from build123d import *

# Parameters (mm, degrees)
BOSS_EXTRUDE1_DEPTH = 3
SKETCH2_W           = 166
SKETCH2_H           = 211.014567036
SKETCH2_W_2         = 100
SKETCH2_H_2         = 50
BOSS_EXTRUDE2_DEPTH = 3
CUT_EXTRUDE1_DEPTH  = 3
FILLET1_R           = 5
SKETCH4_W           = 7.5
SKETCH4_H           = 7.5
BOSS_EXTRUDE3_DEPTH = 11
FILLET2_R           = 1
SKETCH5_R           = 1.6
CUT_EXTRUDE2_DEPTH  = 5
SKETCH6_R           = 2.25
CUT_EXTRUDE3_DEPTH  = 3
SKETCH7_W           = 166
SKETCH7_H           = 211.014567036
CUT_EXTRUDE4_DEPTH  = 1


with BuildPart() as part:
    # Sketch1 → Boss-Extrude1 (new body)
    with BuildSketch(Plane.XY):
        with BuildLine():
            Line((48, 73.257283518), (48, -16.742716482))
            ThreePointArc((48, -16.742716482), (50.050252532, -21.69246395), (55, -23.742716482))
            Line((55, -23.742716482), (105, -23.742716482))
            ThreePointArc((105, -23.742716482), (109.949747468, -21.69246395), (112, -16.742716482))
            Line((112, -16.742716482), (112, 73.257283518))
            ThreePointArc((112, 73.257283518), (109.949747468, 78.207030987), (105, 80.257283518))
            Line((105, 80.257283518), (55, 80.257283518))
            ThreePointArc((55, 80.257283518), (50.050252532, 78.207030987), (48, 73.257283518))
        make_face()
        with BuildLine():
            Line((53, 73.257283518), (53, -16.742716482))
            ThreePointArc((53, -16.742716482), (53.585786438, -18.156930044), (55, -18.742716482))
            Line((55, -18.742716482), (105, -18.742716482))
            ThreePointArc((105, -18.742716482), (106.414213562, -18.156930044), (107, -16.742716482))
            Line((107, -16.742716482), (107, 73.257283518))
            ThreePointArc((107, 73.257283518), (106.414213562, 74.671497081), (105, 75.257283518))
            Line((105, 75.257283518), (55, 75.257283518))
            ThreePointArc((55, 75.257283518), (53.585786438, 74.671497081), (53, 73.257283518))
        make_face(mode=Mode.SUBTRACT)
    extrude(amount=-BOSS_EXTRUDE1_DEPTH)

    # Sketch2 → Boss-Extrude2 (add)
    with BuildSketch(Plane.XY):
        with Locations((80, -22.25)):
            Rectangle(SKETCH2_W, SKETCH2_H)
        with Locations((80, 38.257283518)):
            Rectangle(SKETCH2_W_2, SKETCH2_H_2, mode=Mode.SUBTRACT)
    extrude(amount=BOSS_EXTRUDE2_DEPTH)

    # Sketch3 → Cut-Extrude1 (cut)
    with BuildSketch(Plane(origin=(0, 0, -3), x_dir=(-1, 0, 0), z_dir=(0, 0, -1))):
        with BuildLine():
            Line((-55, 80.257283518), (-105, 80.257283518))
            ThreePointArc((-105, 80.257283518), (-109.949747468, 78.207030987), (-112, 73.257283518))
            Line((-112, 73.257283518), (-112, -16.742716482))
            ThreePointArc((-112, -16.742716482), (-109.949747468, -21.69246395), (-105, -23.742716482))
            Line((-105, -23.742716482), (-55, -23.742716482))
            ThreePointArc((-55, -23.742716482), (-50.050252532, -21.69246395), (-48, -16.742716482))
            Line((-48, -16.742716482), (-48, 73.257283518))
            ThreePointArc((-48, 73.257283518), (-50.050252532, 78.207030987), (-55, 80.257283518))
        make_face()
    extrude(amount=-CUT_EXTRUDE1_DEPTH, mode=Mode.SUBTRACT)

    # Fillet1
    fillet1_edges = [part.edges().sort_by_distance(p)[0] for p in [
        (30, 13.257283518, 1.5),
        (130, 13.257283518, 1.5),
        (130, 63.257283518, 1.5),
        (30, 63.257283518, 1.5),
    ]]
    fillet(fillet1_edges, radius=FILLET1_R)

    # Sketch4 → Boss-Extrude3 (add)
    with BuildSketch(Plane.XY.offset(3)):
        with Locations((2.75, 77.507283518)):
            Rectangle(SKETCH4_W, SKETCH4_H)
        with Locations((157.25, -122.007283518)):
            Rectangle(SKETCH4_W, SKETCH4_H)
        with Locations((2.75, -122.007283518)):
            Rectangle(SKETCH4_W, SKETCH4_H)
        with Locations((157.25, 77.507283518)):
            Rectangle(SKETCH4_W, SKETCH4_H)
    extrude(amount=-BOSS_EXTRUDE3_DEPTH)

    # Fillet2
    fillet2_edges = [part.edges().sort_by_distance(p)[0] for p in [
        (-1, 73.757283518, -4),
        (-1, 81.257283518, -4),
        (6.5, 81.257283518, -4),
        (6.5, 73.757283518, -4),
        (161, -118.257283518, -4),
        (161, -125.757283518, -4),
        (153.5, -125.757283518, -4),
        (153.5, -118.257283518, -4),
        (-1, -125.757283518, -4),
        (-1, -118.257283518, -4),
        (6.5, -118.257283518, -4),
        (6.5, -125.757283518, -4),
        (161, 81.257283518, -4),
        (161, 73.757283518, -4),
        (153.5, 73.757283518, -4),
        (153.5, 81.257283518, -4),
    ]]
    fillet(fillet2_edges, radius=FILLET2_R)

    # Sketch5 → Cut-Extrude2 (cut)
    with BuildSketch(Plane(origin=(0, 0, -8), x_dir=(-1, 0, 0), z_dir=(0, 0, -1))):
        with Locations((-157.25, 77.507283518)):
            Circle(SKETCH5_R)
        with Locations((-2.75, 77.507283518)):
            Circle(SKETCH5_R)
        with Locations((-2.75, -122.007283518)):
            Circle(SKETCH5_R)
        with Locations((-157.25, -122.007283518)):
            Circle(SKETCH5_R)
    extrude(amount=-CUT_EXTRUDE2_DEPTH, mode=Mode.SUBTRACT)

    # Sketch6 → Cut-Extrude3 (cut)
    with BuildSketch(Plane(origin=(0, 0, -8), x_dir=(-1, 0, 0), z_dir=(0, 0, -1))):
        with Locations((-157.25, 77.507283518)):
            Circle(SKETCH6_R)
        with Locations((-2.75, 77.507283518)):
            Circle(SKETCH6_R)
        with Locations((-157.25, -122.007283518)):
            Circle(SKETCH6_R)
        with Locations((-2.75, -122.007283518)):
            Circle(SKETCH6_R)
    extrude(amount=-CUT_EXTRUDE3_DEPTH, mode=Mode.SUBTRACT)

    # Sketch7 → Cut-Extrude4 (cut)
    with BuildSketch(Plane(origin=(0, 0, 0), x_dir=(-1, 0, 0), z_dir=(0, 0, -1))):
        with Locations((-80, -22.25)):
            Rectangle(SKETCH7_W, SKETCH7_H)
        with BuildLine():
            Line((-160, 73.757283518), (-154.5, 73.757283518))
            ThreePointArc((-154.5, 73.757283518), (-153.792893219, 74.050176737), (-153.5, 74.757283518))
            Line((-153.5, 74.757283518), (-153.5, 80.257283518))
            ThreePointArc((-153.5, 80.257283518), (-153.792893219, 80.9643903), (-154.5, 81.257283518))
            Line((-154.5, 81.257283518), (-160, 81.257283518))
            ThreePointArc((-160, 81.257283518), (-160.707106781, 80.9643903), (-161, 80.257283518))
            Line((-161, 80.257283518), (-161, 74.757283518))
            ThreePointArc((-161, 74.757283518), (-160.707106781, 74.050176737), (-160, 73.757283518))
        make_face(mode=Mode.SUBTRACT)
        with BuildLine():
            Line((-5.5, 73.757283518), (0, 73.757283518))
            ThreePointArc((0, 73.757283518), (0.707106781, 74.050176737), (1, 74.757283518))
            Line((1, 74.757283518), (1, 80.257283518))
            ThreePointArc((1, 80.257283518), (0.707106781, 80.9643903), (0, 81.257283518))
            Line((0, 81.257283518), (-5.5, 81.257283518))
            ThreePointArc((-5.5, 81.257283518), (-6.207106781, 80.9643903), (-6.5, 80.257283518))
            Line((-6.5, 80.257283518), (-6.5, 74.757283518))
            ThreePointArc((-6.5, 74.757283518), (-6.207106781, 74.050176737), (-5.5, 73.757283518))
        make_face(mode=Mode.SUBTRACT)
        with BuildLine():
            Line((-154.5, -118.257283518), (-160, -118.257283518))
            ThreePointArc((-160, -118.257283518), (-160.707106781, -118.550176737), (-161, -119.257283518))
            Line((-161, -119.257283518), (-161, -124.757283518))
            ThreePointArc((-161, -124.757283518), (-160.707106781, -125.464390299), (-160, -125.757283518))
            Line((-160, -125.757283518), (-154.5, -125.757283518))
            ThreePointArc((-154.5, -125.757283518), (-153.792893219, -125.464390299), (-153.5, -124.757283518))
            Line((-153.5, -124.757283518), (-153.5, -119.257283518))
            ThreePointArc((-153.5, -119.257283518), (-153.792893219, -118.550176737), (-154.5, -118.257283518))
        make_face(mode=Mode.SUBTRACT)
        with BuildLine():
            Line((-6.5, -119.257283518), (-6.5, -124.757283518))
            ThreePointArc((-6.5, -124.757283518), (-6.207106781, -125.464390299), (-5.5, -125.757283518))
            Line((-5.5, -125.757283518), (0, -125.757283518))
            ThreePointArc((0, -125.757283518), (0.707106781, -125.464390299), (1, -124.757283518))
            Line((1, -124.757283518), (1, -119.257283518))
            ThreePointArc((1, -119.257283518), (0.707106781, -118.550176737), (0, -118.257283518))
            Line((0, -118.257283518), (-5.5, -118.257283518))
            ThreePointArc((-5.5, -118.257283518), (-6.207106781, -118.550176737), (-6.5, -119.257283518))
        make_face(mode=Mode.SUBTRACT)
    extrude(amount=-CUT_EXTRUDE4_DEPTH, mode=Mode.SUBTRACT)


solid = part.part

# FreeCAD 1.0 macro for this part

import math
import FreeCAD as App
import Part
import Sketcher
from FreeCAD import Vector


def edges_at(feature, points):
    """Names of the edges that pass closest to the given points."""
    edges = feature.Shape.Edges
    near = lambda p: min(range(len(edges)), key=lambda i: edges[i].distToShape(Part.Vertex(*p))[0])
    return sorted({f"Edge{near(p) + 1}" for p in points})


def add_polygon(sketch, points):
    """Adds a closed chain of lines whose ends are joined by coincident constraints."""
    first, n = sketch.GeometryCount, len(points)
    for a, b in zip(points, points[1:] + points[:1]):
        sketch.addGeometry(Part.LineSegment(App.Vector(*a, 0), App.Vector(*b, 0)), False)
    for i in range(n):
        sketch.addConstraint(Sketcher.Constraint("Coincident", first + i, 2, first + (i + 1) % n, 1))

doc = App.newDocument("Part")
body = doc.addObject("PartDesign::Body", "Body")

# Sketch on XY plane
sketch1 = body.newObject("Sketcher::SketchObject", "Sketch")
sketch1.AttachmentSupport = (doc.getObject("XY_Plane"), [""])
sketch1.MapMode = "FlatFace"
sketch1.addGeometry([
    Part.LineSegment(Vector(48, 73.257284, 0), Vector(48, -16.742716, 0)),  # 0
    Part.ArcOfCircle(Part.Circle(Vector(55, -16.742716, 0), Vector(0, 0, 1), 7), math.radians(-180), math.radians(-90)),  # 1
    Part.LineSegment(Vector(55, -23.742716, 0), Vector(105, -23.742716, 0)),  # 2
    Part.ArcOfCircle(Part.Circle(Vector(105, -16.742716, 0), Vector(0, 0, 1), 7), math.radians(-90), math.radians(0)),  # 3
    Part.LineSegment(Vector(112, -16.742716, 0), Vector(112, 73.257284, 0)),  # 4
    Part.ArcOfCircle(Part.Circle(Vector(105, 73.257284, 0), Vector(0, 0, 1), 7), math.radians(0), math.radians(90)),  # 5
    Part.LineSegment(Vector(105, 80.257284, 0), Vector(55, 80.257284, 0)),  # 6
    Part.ArcOfCircle(Part.Circle(Vector(55, 73.257284, 0), Vector(0, 0, 1), 7), math.radians(90), math.radians(180)),  # 7
    Part.LineSegment(Vector(53, -16.742716, 0), Vector(53, 73.257284, 0)),  # 8
    Part.ArcOfCircle(Part.Circle(Vector(55, 73.257284, 0), Vector(0, 0, 1), 2), math.radians(90), math.radians(180)),  # 9
    Part.LineSegment(Vector(55, 75.257284, 0), Vector(105, 75.257284, 0)),  # 10
    Part.ArcOfCircle(Part.Circle(Vector(105, 73.257284, 0), Vector(0, 0, 1), 2), math.radians(0), math.radians(90)),  # 11
    Part.LineSegment(Vector(107, 73.257284, 0), Vector(107, -16.742716, 0)),  # 12
    Part.ArcOfCircle(Part.Circle(Vector(105, -16.742716, 0), Vector(0, 0, 1), 2), math.radians(-90), math.radians(0)),  # 13
    Part.LineSegment(Vector(105, -18.742716, 0), Vector(55, -18.742716, 0)),  # 14
    Part.ArcOfCircle(Part.Circle(Vector(55, -16.742716, 0), Vector(0, 0, 1), 2), math.radians(-180), math.radians(-90)),  # 15
], False)
sketch1.addConstraint([
    Sketcher.Constraint("Tangent", 0, 2, 1, 1),
    Sketcher.Constraint("Tangent", 1, 2, 2, 1),
    Sketcher.Constraint("Tangent", 2, 2, 3, 1),
    Sketcher.Constraint("Tangent", 3, 2, 4, 1),
    Sketcher.Constraint("Tangent", 4, 2, 5, 1),
    Sketcher.Constraint("Tangent", 5, 2, 6, 1),
    Sketcher.Constraint("Tangent", 6, 2, 7, 1),
    Sketcher.Constraint("Tangent", 7, 2, 0, 1),
    Sketcher.Constraint("Tangent", 8, 2, 9, 2),
    Sketcher.Constraint("Tangent", 9, 1, 10, 1),
    Sketcher.Constraint("Tangent", 10, 2, 11, 2),
    Sketcher.Constraint("Tangent", 11, 1, 12, 1),
    Sketcher.Constraint("Tangent", 12, 2, 13, 2),
    Sketcher.Constraint("Tangent", 13, 1, 14, 1),
    Sketcher.Constraint("Tangent", 14, 2, 15, 2),
    Sketcher.Constraint("Tangent", 15, 1, 8, 1),
    Sketcher.Constraint("Vertical", 0),
    Sketcher.Constraint("Horizontal", 2),
    Sketcher.Constraint("Vertical", 4),
    Sketcher.Constraint("Horizontal", 6),
    Sketcher.Constraint("Vertical", 8),
    Sketcher.Constraint("Horizontal", 10),
    Sketcher.Constraint("Vertical", 12),
    Sketcher.Constraint("Horizontal", 14),
    Sketcher.Constraint("Coincident", 9, 3, 7, 3),
    Sketcher.Constraint("Coincident", 11, 3, 5, 3),
    Sketcher.Constraint("Coincident", 13, 3, 3, 3),
    Sketcher.Constraint("Equal", 1, 3),
    Sketcher.Constraint("Equal", 3, 5),
    Sketcher.Constraint("Equal", 5, 7),
    Sketcher.Constraint("Equal", 13, 15),
    Sketcher.Constraint("Radius", 1, 7.0),
    Sketcher.Constraint("Radius", 9, 2.0),
    Sketcher.Constraint("DistanceX", 2, 1, 2, 2, 50.0),
    Sketcher.Constraint("DistanceY", 0, 2, 0, 1, 90.0),
    Sketcher.Constraint("DistanceX", -1, 1, 1, 3, 55.0),
    Sketcher.Constraint("DistanceY", 1, 3, -1, 1, 16.742716),
])
pad1 = body.newObject("PartDesign::Pad", "Pad")
pad1.Profile = sketch1
pad1.Length = 3
pad1.Reversed = True

# Sketch on XY plane
sketch2 = body.newObject("Sketcher::SketchObject", "Sketch001")
sketch2.AttachmentSupport = (doc.getObject("XY_Plane"), [""])
sketch2.MapMode = "FlatFace"
add_polygon(sketch2, [(-3, 83.257284), (-3, -127.757284), (163, -127.757284), (163, 83.257284)])  # lines 0-3
add_polygon(sketch2, [(130, 13.257284), (30, 13.257284), (30, 63.257284), (130, 63.257284)])  # lines 4-7
sketch2.addConstraint([
    Sketcher.Constraint("Vertical", 0),
    Sketcher.Constraint("Horizontal", 1),
    Sketcher.Constraint("Vertical", 2),
    Sketcher.Constraint("Horizontal", 3),
    Sketcher.Constraint("Horizontal", 4),
    Sketcher.Constraint("Vertical", 5),
    Sketcher.Constraint("Horizontal", 6),
    Sketcher.Constraint("Vertical", 7),
    Sketcher.Constraint("DistanceX", 1, 1, 1, 2, 166.0),
    Sketcher.Constraint("DistanceX", 4, 2, 4, 1, 100.0),
    Sketcher.Constraint("DistanceY", 5, 1, 5, 2, 50.0),
    Sketcher.Constraint("DistanceX", 0, 2, -1, 1, 3.0),
    Sketcher.Constraint("DistanceX", -1, 1, 4, 2, 30.0),
    Sketcher.Constraint("DistanceY", 4, 2, 3, 2, 70.0),
    Sketcher.Constraint("DistanceY", 0, 2, 0, 1, 211.014567),
    Sketcher.Constraint("DistanceY", 0, 2, -1, 1, 127.757284),
])
pad2 = body.newObject("PartDesign::Pad", "Pad001")
pad2.Profile = sketch2
pad2.Length = 3

# Sketch on XY plane
sketch3 = body.newObject("Sketcher::SketchObject", "Sketch002")
sketch3.AttachmentSupport = (doc.getObject("XY_Plane"), [""])
sketch3.MapMode = "FlatFace"
sketch3.AttachmentOffset = App.Placement(Vector(0, 0, -3), App.Rotation())
sketch3.addGeometry([
    Part.LineSegment(Vector(55, 80.257284, 0), Vector(105, 80.257284, 0)),  # 0
    Part.ArcOfCircle(Part.Circle(Vector(105, 73.257284, 0), Vector(0, 0, 1), 7), math.radians(0), math.radians(90)),  # 1
    Part.LineSegment(Vector(112, 73.257284, 0), Vector(112, -16.742716, 0)),  # 2
    Part.ArcOfCircle(Part.Circle(Vector(105, -16.742716, 0), Vector(0, 0, 1), 7), math.radians(-90), math.radians(0)),  # 3
    Part.LineSegment(Vector(105, -23.742716, 0), Vector(55, -23.742716, 0)),  # 4
    Part.ArcOfCircle(Part.Circle(Vector(55, -16.742716, 0), Vector(0, 0, 1), 7), math.radians(-180), math.radians(-90)),  # 5
    Part.LineSegment(Vector(48, -16.742716, 0), Vector(48, 73.257284, 0)),  # 6
    Part.ArcOfCircle(Part.Circle(Vector(55, 73.257284, 0), Vector(0, 0, 1), 7), math.radians(90), math.radians(180)),  # 7
], False)
sketch3.addConstraint([
    Sketcher.Constraint("Tangent", 0, 2, 1, 2),
    Sketcher.Constraint("Tangent", 1, 1, 2, 1),
    Sketcher.Constraint("Tangent", 2, 2, 3, 2),
    Sketcher.Constraint("Tangent", 3, 1, 4, 1),
    Sketcher.Constraint("Tangent", 4, 2, 5, 2),
    Sketcher.Constraint("Tangent", 5, 1, 6, 1),
    Sketcher.Constraint("Tangent", 6, 2, 7, 2),
    Sketcher.Constraint("Tangent", 7, 1, 0, 1),
    Sketcher.Constraint("Horizontal", 0),
    Sketcher.Constraint("Vertical", 2),
    Sketcher.Constraint("Horizontal", 4),
    Sketcher.Constraint("Vertical", 6),
    Sketcher.Constraint("Equal", 1, 3),
    Sketcher.Constraint("Equal", 3, 5),
    Sketcher.Constraint("Equal", 5, 7),
    Sketcher.Constraint("Radius", 1, 7.0),
    Sketcher.Constraint("DistanceX", 0, 1, 0, 2, 50.0),
    Sketcher.Constraint("DistanceY", 2, 2, 2, 1, 90.0),
    Sketcher.Constraint("DistanceX", -1, 1, 1, 3, 105.0),
    Sketcher.Constraint("DistanceY", -1, 1, 1, 3, 73.257284),
])
pocket1 = body.newObject("PartDesign::Pocket", "Pocket")
pocket1.Profile = sketch3
pocket1.Length = 3
pocket1.Reversed = True
doc.recompute()

fillet = body.newObject("PartDesign::Fillet", "Fillet")
fillet.Base = (pocket1, edges_at(pocket1, [
    (30, 13.257, 1.5),
    (130, 13.257, 1.5),
    (130, 63.257, 1.5),
    (30, 63.257, 1.5),
]))
fillet.Radius = 5

# Sketch on XY plane
sketch4 = body.newObject("Sketcher::SketchObject", "Sketch003")
sketch4.AttachmentSupport = (doc.getObject("XY_Plane"), [""])
sketch4.MapMode = "FlatFace"
sketch4.AttachmentOffset = App.Placement(Vector(0, 0, 3), App.Rotation())
add_polygon(sketch4, [(-1, 81.257284), (-1, 73.757284), (6.5, 73.757284), (6.5, 81.257284)])  # lines 0-3
add_polygon(sketch4, [(153.5, -118.257284), (153.5, -125.757284), (161, -125.757284), (161, -118.257284)])  # lines 4-7
add_polygon(sketch4, [(-1, -118.257284), (-1, -125.757284), (6.5, -125.757284), (6.5, -118.257284)])  # lines 8-11
add_polygon(sketch4, [(153.5, 81.257284), (153.5, 73.757284), (161, 73.757284), (161, 81.257284)])  # lines 12-15
sketch4.addConstraint([
    Sketcher.Constraint("Vertical", 0),
    Sketcher.Constraint("Horizontal", 1),
    Sketcher.Constraint("Vertical", 2),
    Sketcher.Constraint("Horizontal", 3),
    Sketcher.Constraint("Vertical", 4),
    Sketcher.Constraint("Horizontal", 5),
    Sketcher.Constraint("Vertical", 6),
    Sketcher.Constraint("Horizontal", 7),
    Sketcher.Constraint("Vertical", 8),
    Sketcher.Constraint("Horizontal", 9),
    Sketcher.Constraint("Vertical", 10),
    Sketcher.Constraint("Horizontal", 11),
    Sketcher.Constraint("Vertical", 12),
    Sketcher.Constraint("Horizontal", 13),
    Sketcher.Constraint("Vertical", 14),
    Sketcher.Constraint("Horizontal", 15),
    Sketcher.Constraint("Horizontal", 5, 2, 8, 2),
    Sketcher.Constraint("Horizontal", 7, 2, 10, 2),
    Sketcher.Constraint("Horizontal", 1, 2, 12, 2),
    Sketcher.Constraint("Horizontal", 3, 2, 14, 2),
    Sketcher.Constraint("Vertical", 3, 2, 8, 2),
    Sketcher.Constraint("Vertical", 2, 2, 9, 2),
    Sketcher.Constraint("Vertical", 7, 2, 12, 2),
    Sketcher.Constraint("Vertical", 6, 2, 13, 2),
    Sketcher.Constraint("Equal", 3, 5),
    Sketcher.Constraint("Equal", 15, 0),
    Sketcher.Constraint("Equal", 2, 4),
    Sketcher.Constraint("DistanceX", 1, 1, 1, 2, 7.5),
    Sketcher.Constraint("DistanceX", 0, 2, -1, 1, 1.0),
    Sketcher.Constraint("DistanceX", -1, 1, 5, 2, 161.0),
    Sketcher.Constraint("DistanceY", -1, 1, 0, 2, 73.757284),
    Sketcher.Constraint("DistanceY", 4, 2, -1, 1, 125.757284),
])
pad3 = body.newObject("PartDesign::Pad", "Pad002")
pad3.Profile = sketch4
pad3.Length = 11
pad3.Reversed = True
doc.recompute()

fillet2 = body.newObject("PartDesign::Fillet", "Fillet001")
fillet2.Base = (pad3, edges_at(pad3, [
    (-1, 73.757, -4),
    (-1, 81.257, -4),
    (6.5, 81.257, -4),
    (6.5, 73.757, -4),
    (161, -118.257, -4),
    (161, -125.757, -4),
    (153.5, -125.757, -4),
    (153.5, -118.257, -4),
    (-1, -125.757, -4),
    (-1, -118.257, -4),
    (6.5, -118.257, -4),
    (6.5, -125.757, -4),
    (161, 81.257, -4),
    (161, 73.757, -4),
    (153.5, 73.757, -4),
    (153.5, 81.257, -4),
]))
fillet2.Radius = 1

# Sketch on XY plane
sketch5 = body.newObject("Sketcher::SketchObject", "Sketch004")
sketch5.AttachmentSupport = (doc.getObject("XY_Plane"), [""])
sketch5.MapMode = "FlatFace"
sketch5.AttachmentOffset = App.Placement(Vector(0, 0, -8), App.Rotation())
sketch5.addGeometry([
    Part.Circle(Vector(157.25, 77.507284, 0), Vector(0, 0, 1), 1.6),
    Part.Circle(Vector(2.75, 77.507284, 0), Vector(0, 0, 1), 1.6),
    Part.Circle(Vector(2.75, -122.007284, 0), Vector(0, 0, 1), 1.6),
    Part.Circle(Vector(157.25, -122.007284, 0), Vector(0, 0, 1), 1.6),
], False)
sketch5.addConstraint([
    Sketcher.Constraint("Equal", 0, 1),
    Sketcher.Constraint("Equal", 1, 2),
    Sketcher.Constraint("Equal", 2, 3),
    Sketcher.Constraint("Horizontal", 0, 3, 1, 3),
    Sketcher.Constraint("Horizontal", 2, 3, 3, 3),
    Sketcher.Constraint("Vertical", 1, 3, 2, 3),
    Sketcher.Constraint("Vertical", 0, 3, 3, 3),
    Sketcher.Constraint("Diameter", 0, 3.2),
    Sketcher.Constraint("DistanceX", 1, 3, 0, 3, 154.5),
    Sketcher.Constraint("DistanceX", -1, 1, 0, 3, 157.25),
    Sketcher.Constraint("DistanceY", -1, 1, 0, 3, 77.507284),
    Sketcher.Constraint("DistanceY", 2, 3, -1, 1, 122.007284),
])
pocket2 = body.newObject("PartDesign::Pocket", "Pocket001")
pocket2.Profile = sketch5
pocket2.Length = 5
pocket2.Reversed = True

# Sketch on XY plane
sketch6 = body.newObject("Sketcher::SketchObject", "Sketch005")
sketch6.AttachmentSupport = (doc.getObject("XY_Plane"), [""])
sketch6.MapMode = "FlatFace"
sketch6.AttachmentOffset = App.Placement(Vector(0, 0, -8), App.Rotation())
sketch6.addGeometry([
    Part.Circle(Vector(157.25, 77.507284, 0), Vector(0, 0, 1), 2.25),
    Part.Circle(Vector(2.75, 77.507284, 0), Vector(0, 0, 1), 2.25),
    Part.Circle(Vector(157.25, -122.007284, 0), Vector(0, 0, 1), 2.25),
    Part.Circle(Vector(2.75, -122.007284, 0), Vector(0, 0, 1), 2.25),
], False)
sketch6.addConstraint([
    Sketcher.Constraint("Equal", 0, 1),
    Sketcher.Constraint("Equal", 1, 2),
    Sketcher.Constraint("Equal", 2, 3),
    Sketcher.Constraint("Horizontal", 0, 3, 1, 3),
    Sketcher.Constraint("Horizontal", 2, 3, 3, 3),
    Sketcher.Constraint("Vertical", 0, 3, 2, 3),
    Sketcher.Constraint("Vertical", 1, 3, 3, 3),
    Sketcher.Constraint("Diameter", 0, 4.5),
    Sketcher.Constraint("DistanceX", 1, 3, 0, 3, 154.5),
    Sketcher.Constraint("DistanceX", -1, 1, 0, 3, 157.25),
    Sketcher.Constraint("DistanceY", -1, 1, 0, 3, 77.507284),
    Sketcher.Constraint("DistanceY", 2, 3, -1, 1, 122.007284),
])
pocket3 = body.newObject("PartDesign::Pocket", "Pocket002")
pocket3.Profile = sketch6
pocket3.Length = 3
pocket3.Reversed = True

# Sketch on XY plane
sketch7 = body.newObject("Sketcher::SketchObject", "Sketch006")
sketch7.AttachmentSupport = (doc.getObject("XY_Plane"), [""])
sketch7.MapMode = "FlatFace"
add_polygon(sketch7, [(163, 83.257284), (163, -127.757284), (-3, -127.757284), (-3, 83.257284)])  # lines 0-3
sketch7.addGeometry(Part.LineSegment(Vector(160, -118.257284, 0), Vector(154.5, -118.257284, 0)), False)  # 4
sketch7.addGeometry(Part.ArcOfCircle(Part.Circle(Vector(154.5, -119.257284, 0), Vector(0, 0, 1), 1), math.radians(90), math.radians(180)), False)  # 5
sketch7.addGeometry(Part.LineSegment(Vector(153.5, -119.257284, 0), Vector(153.5, -124.757284, 0)), False)  # 6
sketch7.addGeometry(Part.ArcOfCircle(Part.Circle(Vector(154.5, -124.757284, 0), Vector(0, 0, 1), 1), math.radians(-180), math.radians(-90)), False)  # 7
sketch7.addGeometry(Part.LineSegment(Vector(154.5, -125.757284, 0), Vector(160, -125.757284, 0)), False)  # 8
sketch7.addGeometry(Part.ArcOfCircle(Part.Circle(Vector(160, -124.757284, 0), Vector(0, 0, 1), 1), math.radians(-90), math.radians(0)), False)  # 9
sketch7.addGeometry(Part.LineSegment(Vector(161, -124.757284, 0), Vector(161, -119.257284, 0)), False)  # 10
sketch7.addGeometry(Part.ArcOfCircle(Part.Circle(Vector(160, -119.257284, 0), Vector(0, 0, 1), 1), math.radians(0), math.radians(90)), False)  # 11
sketch7.addGeometry(Part.LineSegment(Vector(6.5, -124.757284, 0), Vector(6.5, -119.257284, 0)), False)  # 12
sketch7.addGeometry(Part.ArcOfCircle(Part.Circle(Vector(5.5, -119.257284, 0), Vector(0, 0, 1), 1), math.radians(0), math.radians(90)), False)  # 13
sketch7.addGeometry(Part.LineSegment(Vector(5.5, -118.257284, 0), Vector(0, -118.257284, 0)), False)  # 14
sketch7.addGeometry(Part.ArcOfCircle(Part.Circle(Vector(0, -119.257284, 0), Vector(0, 0, 1), 1), math.radians(90), math.radians(180)), False)  # 15
sketch7.addGeometry(Part.LineSegment(Vector(-1, -119.257284, 0), Vector(-1, -124.757284, 0)), False)  # 16
sketch7.addGeometry(Part.ArcOfCircle(Part.Circle(Vector(0, -124.757284, 0), Vector(0, 0, 1), 1), math.radians(-180), math.radians(-90)), False)  # 17
sketch7.addGeometry(Part.LineSegment(Vector(0, -125.757284, 0), Vector(5.5, -125.757284, 0)), False)  # 18
sketch7.addGeometry(Part.ArcOfCircle(Part.Circle(Vector(5.5, -124.757284, 0), Vector(0, 0, 1), 1), math.radians(-90), math.radians(0)), False)  # 19
sketch7.addGeometry(Part.LineSegment(Vector(154.5, 73.757284, 0), Vector(160, 73.757284, 0)), False)  # 20
sketch7.addGeometry(Part.ArcOfCircle(Part.Circle(Vector(160, 74.757284, 0), Vector(0, 0, 1), 1), math.radians(-90), math.radians(0)), False)  # 21
sketch7.addGeometry(Part.LineSegment(Vector(161, 74.757284, 0), Vector(161, 80.257284, 0)), False)  # 22
sketch7.addGeometry(Part.ArcOfCircle(Part.Circle(Vector(160, 80.257284, 0), Vector(0, 0, 1), 1), math.radians(0), math.radians(90)), False)  # 23
sketch7.addGeometry(Part.LineSegment(Vector(160, 81.257284, 0), Vector(154.5, 81.257284, 0)), False)  # 24
sketch7.addGeometry(Part.ArcOfCircle(Part.Circle(Vector(154.5, 80.257284, 0), Vector(0, 0, 1), 1), math.radians(90), math.radians(180)), False)  # 25
sketch7.addGeometry(Part.LineSegment(Vector(153.5, 80.257284, 0), Vector(153.5, 74.757284, 0)), False)  # 26
sketch7.addGeometry(Part.ArcOfCircle(Part.Circle(Vector(154.5, 74.757284, 0), Vector(0, 0, 1), 1), math.radians(-180), math.radians(-90)), False)  # 27
sketch7.addGeometry(Part.LineSegment(Vector(0, 73.757284, 0), Vector(5.5, 73.757284, 0)), False)  # 28
sketch7.addGeometry(Part.ArcOfCircle(Part.Circle(Vector(5.5, 74.757284, 0), Vector(0, 0, 1), 1), math.radians(-90), math.radians(0)), False)  # 29
sketch7.addGeometry(Part.LineSegment(Vector(6.5, 74.757284, 0), Vector(6.5, 80.257284, 0)), False)  # 30
sketch7.addGeometry(Part.ArcOfCircle(Part.Circle(Vector(5.5, 80.257284, 0), Vector(0, 0, 1), 1), math.radians(0), math.radians(90)), False)  # 31
sketch7.addGeometry(Part.LineSegment(Vector(5.5, 81.257284, 0), Vector(0, 81.257284, 0)), False)  # 32
sketch7.addGeometry(Part.ArcOfCircle(Part.Circle(Vector(0, 80.257284, 0), Vector(0, 0, 1), 1), math.radians(90), math.radians(180)), False)  # 33
sketch7.addGeometry(Part.LineSegment(Vector(-1, 80.257284, 0), Vector(-1, 74.757284, 0)), False)  # 34
sketch7.addGeometry(Part.ArcOfCircle(Part.Circle(Vector(0, 74.757284, 0), Vector(0, 0, 1), 1), math.radians(-180), math.radians(-90)), False)  # 35
sketch7.addConstraint([
    Sketcher.Constraint("Tangent", 4, 2, 5, 1),
    Sketcher.Constraint("Tangent", 5, 2, 6, 1),
    Sketcher.Constraint("Tangent", 6, 2, 7, 1),
    Sketcher.Constraint("Tangent", 7, 2, 8, 1),
    Sketcher.Constraint("Tangent", 8, 2, 9, 1),
    Sketcher.Constraint("Tangent", 9, 2, 10, 1),
    Sketcher.Constraint("Tangent", 10, 2, 11, 1),
    Sketcher.Constraint("Tangent", 11, 2, 4, 1),
    Sketcher.Constraint("Tangent", 12, 2, 13, 1),
    Sketcher.Constraint("Tangent", 13, 2, 14, 1),
    Sketcher.Constraint("Tangent", 14, 2, 15, 1),
    Sketcher.Constraint("Tangent", 15, 2, 16, 1),
    Sketcher.Constraint("Tangent", 16, 2, 17, 1),
    Sketcher.Constraint("Tangent", 17, 2, 18, 1),
    Sketcher.Constraint("Tangent", 18, 2, 19, 1),
    Sketcher.Constraint("Tangent", 19, 2, 12, 1),
    Sketcher.Constraint("Tangent", 20, 2, 21, 1),
    Sketcher.Constraint("Tangent", 21, 2, 22, 1),
    Sketcher.Constraint("Tangent", 22, 2, 23, 1),
    Sketcher.Constraint("Tangent", 23, 2, 24, 1),
    Sketcher.Constraint("Tangent", 24, 2, 25, 1),
    Sketcher.Constraint("Tangent", 25, 2, 26, 1),
    Sketcher.Constraint("Tangent", 26, 2, 27, 1),
    Sketcher.Constraint("Tangent", 27, 2, 20, 1),
    Sketcher.Constraint("Tangent", 28, 2, 29, 1),
    Sketcher.Constraint("Tangent", 29, 2, 30, 1),
    Sketcher.Constraint("Tangent", 30, 2, 31, 1),
    Sketcher.Constraint("Tangent", 31, 2, 32, 1),
    Sketcher.Constraint("Tangent", 32, 2, 33, 1),
    Sketcher.Constraint("Tangent", 33, 2, 34, 1),
    Sketcher.Constraint("Tangent", 34, 2, 35, 1),
    Sketcher.Constraint("Tangent", 35, 2, 28, 1),
    Sketcher.Constraint("Vertical", 0),
    Sketcher.Constraint("Horizontal", 1),
    Sketcher.Constraint("Vertical", 2),
    Sketcher.Constraint("Horizontal", 3),
    Sketcher.Constraint("Horizontal", 4),
    Sketcher.Constraint("Vertical", 6),
    Sketcher.Constraint("Horizontal", 8),
    Sketcher.Constraint("Vertical", 10),
    Sketcher.Constraint("Vertical", 12),
    Sketcher.Constraint("Horizontal", 14),
    Sketcher.Constraint("Vertical", 16),
    Sketcher.Constraint("Horizontal", 18),
    Sketcher.Constraint("Horizontal", 20),
    Sketcher.Constraint("Vertical", 22),
    Sketcher.Constraint("Horizontal", 24),
    Sketcher.Constraint("Vertical", 26),
    Sketcher.Constraint("Horizontal", 28),
    Sketcher.Constraint("Vertical", 30),
    Sketcher.Constraint("Horizontal", 32),
    Sketcher.Constraint("Vertical", 34),
    Sketcher.Constraint("Equal", 5, 7),
    Sketcher.Constraint("Equal", 7, 9),
    Sketcher.Constraint("Equal", 9, 11),
    Sketcher.Constraint("Equal", 11, 13),
    Sketcher.Constraint("Equal", 13, 15),
    Sketcher.Constraint("Equal", 15, 17),
    Sketcher.Constraint("Equal", 17, 19),
    Sketcher.Constraint("Equal", 19, 21),
    Sketcher.Constraint("Equal", 21, 23),
    Sketcher.Constraint("Equal", 23, 25),
    Sketcher.Constraint("Equal", 25, 27),
    Sketcher.Constraint("Equal", 27, 29),
    Sketcher.Constraint("Equal", 29, 31),
    Sketcher.Constraint("Equal", 31, 33),
    Sketcher.Constraint("Equal", 33, 35),
    Sketcher.Constraint("PointOnObject", 15, 3, -2),
    Sketcher.Constraint("PointOnObject", 33, 3, -2),
    Sketcher.Constraint("Horizontal", 11, 3, 13, 3),
    Sketcher.Constraint("Horizontal", 9, 3, 17, 3),
    Sketcher.Constraint("Horizontal", 27, 3, 29, 3),
    Sketcher.Constraint("Horizontal", 25, 3, 31, 3),
    Sketcher.Constraint("Vertical", 11, 3, 21, 3),
    Sketcher.Constraint("Vertical", 7, 3, 25, 3),
    Sketcher.Constraint("Vertical", 19, 3, 29, 3),
    Sketcher.Constraint("Equal", 8, 14),
    Sketcher.Constraint("Equal", 32, 6),
    Sketcher.Constraint("Equal", 16, 22),
    Sketcher.Constraint("Radius", 5, 1.0),
    Sketcher.Constraint("DistanceX", 1, 2, 1, 1, 166.0),
    Sketcher.Constraint("DistanceX", 4, 2, 4, 1, 5.5),
    Sketcher.Constraint("DistanceX", -1, 1, 9, 3, 160.0),
    Sketcher.Constraint("DistanceX", -1, 1, 0, 2, 163.0),
    Sketcher.Constraint("DistanceY", 0, 2, 9, 3, 3.0),
    Sketcher.Constraint("DistanceY", 33, 3, 2, 2, 3.0),
    Sketcher.Constraint("DistanceY", 0, 2, 0, 1, 211.014567),
    Sketcher.Constraint("DistanceY", 5, 3, -1, 1, 119.257284),
])
pocket4 = body.newObject("PartDesign::Pocket", "Pocket003")
pocket4.Profile = sketch7
pocket4.Length = 1
pocket4.Reversed = True

doc.recompute()
